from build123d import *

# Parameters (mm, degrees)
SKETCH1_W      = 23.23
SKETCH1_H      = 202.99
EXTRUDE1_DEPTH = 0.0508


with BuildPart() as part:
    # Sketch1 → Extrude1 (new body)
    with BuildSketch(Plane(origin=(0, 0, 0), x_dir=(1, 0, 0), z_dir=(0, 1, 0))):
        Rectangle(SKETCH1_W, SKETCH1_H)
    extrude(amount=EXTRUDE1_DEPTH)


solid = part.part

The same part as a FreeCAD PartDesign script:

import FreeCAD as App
import Part
import Sketcher
from FreeCAD import Vector
Q = App.Units.Quantity


def add_polygon(sketch, points):
    """Adds a closed chain of lines whose ends are joined by coincident constraints."""
    first, n = sketch.GeometryCount, len(points)
    for a, b in zip(points, points[1:] + points[:1]):
        sketch.addGeometry(Part.LineSegment(App.Vector(*a, 0), App.Vector(*b, 0)), False)
    for i in range(n):
        sketch.addConstraint(Sketcher.Constraint("Coincident", first + i, 2, first + (i + 1) % n, 1))

doc = App.newDocument("Part")
body = doc.addObject("PartDesign::Body", "Body")

sketch1 = body.newObject("Sketcher::SketchObject", "Sketch")
sketch1.AttachmentSupport = (doc.getObject("XZ_Plane"), [""])
sketch1.MapMode = "FlatFace"
add_polygon(sketch1, [(-12, -101), (-12, 101), (12, 101), (12, -101)])
sketch1.addConstraint([
    Sketcher.Constraint("Vertical", 0),
    Sketcher.Constraint("Horizontal", 1),
    Sketcher.Constraint("Vertical", 2),
    Sketcher.Constraint("Horizontal", 3),
    Sketcher.Constraint("Symmetric", 0, 2, 2, 2, -1, 1),
    Sketcher.Constraint("DistanceX", 1, 1, 1, 2, 23.23),
    Sketcher.Constraint("DistanceY", 0, 1, 0, 2, 202.99),
])
pad1 = body.newObject("PartDesign::Pad", "Pad")
pad1.Profile = sketch1
pad1.Length = Q("0.002 in")
pad1.Reversed = True

doc.recompute()
